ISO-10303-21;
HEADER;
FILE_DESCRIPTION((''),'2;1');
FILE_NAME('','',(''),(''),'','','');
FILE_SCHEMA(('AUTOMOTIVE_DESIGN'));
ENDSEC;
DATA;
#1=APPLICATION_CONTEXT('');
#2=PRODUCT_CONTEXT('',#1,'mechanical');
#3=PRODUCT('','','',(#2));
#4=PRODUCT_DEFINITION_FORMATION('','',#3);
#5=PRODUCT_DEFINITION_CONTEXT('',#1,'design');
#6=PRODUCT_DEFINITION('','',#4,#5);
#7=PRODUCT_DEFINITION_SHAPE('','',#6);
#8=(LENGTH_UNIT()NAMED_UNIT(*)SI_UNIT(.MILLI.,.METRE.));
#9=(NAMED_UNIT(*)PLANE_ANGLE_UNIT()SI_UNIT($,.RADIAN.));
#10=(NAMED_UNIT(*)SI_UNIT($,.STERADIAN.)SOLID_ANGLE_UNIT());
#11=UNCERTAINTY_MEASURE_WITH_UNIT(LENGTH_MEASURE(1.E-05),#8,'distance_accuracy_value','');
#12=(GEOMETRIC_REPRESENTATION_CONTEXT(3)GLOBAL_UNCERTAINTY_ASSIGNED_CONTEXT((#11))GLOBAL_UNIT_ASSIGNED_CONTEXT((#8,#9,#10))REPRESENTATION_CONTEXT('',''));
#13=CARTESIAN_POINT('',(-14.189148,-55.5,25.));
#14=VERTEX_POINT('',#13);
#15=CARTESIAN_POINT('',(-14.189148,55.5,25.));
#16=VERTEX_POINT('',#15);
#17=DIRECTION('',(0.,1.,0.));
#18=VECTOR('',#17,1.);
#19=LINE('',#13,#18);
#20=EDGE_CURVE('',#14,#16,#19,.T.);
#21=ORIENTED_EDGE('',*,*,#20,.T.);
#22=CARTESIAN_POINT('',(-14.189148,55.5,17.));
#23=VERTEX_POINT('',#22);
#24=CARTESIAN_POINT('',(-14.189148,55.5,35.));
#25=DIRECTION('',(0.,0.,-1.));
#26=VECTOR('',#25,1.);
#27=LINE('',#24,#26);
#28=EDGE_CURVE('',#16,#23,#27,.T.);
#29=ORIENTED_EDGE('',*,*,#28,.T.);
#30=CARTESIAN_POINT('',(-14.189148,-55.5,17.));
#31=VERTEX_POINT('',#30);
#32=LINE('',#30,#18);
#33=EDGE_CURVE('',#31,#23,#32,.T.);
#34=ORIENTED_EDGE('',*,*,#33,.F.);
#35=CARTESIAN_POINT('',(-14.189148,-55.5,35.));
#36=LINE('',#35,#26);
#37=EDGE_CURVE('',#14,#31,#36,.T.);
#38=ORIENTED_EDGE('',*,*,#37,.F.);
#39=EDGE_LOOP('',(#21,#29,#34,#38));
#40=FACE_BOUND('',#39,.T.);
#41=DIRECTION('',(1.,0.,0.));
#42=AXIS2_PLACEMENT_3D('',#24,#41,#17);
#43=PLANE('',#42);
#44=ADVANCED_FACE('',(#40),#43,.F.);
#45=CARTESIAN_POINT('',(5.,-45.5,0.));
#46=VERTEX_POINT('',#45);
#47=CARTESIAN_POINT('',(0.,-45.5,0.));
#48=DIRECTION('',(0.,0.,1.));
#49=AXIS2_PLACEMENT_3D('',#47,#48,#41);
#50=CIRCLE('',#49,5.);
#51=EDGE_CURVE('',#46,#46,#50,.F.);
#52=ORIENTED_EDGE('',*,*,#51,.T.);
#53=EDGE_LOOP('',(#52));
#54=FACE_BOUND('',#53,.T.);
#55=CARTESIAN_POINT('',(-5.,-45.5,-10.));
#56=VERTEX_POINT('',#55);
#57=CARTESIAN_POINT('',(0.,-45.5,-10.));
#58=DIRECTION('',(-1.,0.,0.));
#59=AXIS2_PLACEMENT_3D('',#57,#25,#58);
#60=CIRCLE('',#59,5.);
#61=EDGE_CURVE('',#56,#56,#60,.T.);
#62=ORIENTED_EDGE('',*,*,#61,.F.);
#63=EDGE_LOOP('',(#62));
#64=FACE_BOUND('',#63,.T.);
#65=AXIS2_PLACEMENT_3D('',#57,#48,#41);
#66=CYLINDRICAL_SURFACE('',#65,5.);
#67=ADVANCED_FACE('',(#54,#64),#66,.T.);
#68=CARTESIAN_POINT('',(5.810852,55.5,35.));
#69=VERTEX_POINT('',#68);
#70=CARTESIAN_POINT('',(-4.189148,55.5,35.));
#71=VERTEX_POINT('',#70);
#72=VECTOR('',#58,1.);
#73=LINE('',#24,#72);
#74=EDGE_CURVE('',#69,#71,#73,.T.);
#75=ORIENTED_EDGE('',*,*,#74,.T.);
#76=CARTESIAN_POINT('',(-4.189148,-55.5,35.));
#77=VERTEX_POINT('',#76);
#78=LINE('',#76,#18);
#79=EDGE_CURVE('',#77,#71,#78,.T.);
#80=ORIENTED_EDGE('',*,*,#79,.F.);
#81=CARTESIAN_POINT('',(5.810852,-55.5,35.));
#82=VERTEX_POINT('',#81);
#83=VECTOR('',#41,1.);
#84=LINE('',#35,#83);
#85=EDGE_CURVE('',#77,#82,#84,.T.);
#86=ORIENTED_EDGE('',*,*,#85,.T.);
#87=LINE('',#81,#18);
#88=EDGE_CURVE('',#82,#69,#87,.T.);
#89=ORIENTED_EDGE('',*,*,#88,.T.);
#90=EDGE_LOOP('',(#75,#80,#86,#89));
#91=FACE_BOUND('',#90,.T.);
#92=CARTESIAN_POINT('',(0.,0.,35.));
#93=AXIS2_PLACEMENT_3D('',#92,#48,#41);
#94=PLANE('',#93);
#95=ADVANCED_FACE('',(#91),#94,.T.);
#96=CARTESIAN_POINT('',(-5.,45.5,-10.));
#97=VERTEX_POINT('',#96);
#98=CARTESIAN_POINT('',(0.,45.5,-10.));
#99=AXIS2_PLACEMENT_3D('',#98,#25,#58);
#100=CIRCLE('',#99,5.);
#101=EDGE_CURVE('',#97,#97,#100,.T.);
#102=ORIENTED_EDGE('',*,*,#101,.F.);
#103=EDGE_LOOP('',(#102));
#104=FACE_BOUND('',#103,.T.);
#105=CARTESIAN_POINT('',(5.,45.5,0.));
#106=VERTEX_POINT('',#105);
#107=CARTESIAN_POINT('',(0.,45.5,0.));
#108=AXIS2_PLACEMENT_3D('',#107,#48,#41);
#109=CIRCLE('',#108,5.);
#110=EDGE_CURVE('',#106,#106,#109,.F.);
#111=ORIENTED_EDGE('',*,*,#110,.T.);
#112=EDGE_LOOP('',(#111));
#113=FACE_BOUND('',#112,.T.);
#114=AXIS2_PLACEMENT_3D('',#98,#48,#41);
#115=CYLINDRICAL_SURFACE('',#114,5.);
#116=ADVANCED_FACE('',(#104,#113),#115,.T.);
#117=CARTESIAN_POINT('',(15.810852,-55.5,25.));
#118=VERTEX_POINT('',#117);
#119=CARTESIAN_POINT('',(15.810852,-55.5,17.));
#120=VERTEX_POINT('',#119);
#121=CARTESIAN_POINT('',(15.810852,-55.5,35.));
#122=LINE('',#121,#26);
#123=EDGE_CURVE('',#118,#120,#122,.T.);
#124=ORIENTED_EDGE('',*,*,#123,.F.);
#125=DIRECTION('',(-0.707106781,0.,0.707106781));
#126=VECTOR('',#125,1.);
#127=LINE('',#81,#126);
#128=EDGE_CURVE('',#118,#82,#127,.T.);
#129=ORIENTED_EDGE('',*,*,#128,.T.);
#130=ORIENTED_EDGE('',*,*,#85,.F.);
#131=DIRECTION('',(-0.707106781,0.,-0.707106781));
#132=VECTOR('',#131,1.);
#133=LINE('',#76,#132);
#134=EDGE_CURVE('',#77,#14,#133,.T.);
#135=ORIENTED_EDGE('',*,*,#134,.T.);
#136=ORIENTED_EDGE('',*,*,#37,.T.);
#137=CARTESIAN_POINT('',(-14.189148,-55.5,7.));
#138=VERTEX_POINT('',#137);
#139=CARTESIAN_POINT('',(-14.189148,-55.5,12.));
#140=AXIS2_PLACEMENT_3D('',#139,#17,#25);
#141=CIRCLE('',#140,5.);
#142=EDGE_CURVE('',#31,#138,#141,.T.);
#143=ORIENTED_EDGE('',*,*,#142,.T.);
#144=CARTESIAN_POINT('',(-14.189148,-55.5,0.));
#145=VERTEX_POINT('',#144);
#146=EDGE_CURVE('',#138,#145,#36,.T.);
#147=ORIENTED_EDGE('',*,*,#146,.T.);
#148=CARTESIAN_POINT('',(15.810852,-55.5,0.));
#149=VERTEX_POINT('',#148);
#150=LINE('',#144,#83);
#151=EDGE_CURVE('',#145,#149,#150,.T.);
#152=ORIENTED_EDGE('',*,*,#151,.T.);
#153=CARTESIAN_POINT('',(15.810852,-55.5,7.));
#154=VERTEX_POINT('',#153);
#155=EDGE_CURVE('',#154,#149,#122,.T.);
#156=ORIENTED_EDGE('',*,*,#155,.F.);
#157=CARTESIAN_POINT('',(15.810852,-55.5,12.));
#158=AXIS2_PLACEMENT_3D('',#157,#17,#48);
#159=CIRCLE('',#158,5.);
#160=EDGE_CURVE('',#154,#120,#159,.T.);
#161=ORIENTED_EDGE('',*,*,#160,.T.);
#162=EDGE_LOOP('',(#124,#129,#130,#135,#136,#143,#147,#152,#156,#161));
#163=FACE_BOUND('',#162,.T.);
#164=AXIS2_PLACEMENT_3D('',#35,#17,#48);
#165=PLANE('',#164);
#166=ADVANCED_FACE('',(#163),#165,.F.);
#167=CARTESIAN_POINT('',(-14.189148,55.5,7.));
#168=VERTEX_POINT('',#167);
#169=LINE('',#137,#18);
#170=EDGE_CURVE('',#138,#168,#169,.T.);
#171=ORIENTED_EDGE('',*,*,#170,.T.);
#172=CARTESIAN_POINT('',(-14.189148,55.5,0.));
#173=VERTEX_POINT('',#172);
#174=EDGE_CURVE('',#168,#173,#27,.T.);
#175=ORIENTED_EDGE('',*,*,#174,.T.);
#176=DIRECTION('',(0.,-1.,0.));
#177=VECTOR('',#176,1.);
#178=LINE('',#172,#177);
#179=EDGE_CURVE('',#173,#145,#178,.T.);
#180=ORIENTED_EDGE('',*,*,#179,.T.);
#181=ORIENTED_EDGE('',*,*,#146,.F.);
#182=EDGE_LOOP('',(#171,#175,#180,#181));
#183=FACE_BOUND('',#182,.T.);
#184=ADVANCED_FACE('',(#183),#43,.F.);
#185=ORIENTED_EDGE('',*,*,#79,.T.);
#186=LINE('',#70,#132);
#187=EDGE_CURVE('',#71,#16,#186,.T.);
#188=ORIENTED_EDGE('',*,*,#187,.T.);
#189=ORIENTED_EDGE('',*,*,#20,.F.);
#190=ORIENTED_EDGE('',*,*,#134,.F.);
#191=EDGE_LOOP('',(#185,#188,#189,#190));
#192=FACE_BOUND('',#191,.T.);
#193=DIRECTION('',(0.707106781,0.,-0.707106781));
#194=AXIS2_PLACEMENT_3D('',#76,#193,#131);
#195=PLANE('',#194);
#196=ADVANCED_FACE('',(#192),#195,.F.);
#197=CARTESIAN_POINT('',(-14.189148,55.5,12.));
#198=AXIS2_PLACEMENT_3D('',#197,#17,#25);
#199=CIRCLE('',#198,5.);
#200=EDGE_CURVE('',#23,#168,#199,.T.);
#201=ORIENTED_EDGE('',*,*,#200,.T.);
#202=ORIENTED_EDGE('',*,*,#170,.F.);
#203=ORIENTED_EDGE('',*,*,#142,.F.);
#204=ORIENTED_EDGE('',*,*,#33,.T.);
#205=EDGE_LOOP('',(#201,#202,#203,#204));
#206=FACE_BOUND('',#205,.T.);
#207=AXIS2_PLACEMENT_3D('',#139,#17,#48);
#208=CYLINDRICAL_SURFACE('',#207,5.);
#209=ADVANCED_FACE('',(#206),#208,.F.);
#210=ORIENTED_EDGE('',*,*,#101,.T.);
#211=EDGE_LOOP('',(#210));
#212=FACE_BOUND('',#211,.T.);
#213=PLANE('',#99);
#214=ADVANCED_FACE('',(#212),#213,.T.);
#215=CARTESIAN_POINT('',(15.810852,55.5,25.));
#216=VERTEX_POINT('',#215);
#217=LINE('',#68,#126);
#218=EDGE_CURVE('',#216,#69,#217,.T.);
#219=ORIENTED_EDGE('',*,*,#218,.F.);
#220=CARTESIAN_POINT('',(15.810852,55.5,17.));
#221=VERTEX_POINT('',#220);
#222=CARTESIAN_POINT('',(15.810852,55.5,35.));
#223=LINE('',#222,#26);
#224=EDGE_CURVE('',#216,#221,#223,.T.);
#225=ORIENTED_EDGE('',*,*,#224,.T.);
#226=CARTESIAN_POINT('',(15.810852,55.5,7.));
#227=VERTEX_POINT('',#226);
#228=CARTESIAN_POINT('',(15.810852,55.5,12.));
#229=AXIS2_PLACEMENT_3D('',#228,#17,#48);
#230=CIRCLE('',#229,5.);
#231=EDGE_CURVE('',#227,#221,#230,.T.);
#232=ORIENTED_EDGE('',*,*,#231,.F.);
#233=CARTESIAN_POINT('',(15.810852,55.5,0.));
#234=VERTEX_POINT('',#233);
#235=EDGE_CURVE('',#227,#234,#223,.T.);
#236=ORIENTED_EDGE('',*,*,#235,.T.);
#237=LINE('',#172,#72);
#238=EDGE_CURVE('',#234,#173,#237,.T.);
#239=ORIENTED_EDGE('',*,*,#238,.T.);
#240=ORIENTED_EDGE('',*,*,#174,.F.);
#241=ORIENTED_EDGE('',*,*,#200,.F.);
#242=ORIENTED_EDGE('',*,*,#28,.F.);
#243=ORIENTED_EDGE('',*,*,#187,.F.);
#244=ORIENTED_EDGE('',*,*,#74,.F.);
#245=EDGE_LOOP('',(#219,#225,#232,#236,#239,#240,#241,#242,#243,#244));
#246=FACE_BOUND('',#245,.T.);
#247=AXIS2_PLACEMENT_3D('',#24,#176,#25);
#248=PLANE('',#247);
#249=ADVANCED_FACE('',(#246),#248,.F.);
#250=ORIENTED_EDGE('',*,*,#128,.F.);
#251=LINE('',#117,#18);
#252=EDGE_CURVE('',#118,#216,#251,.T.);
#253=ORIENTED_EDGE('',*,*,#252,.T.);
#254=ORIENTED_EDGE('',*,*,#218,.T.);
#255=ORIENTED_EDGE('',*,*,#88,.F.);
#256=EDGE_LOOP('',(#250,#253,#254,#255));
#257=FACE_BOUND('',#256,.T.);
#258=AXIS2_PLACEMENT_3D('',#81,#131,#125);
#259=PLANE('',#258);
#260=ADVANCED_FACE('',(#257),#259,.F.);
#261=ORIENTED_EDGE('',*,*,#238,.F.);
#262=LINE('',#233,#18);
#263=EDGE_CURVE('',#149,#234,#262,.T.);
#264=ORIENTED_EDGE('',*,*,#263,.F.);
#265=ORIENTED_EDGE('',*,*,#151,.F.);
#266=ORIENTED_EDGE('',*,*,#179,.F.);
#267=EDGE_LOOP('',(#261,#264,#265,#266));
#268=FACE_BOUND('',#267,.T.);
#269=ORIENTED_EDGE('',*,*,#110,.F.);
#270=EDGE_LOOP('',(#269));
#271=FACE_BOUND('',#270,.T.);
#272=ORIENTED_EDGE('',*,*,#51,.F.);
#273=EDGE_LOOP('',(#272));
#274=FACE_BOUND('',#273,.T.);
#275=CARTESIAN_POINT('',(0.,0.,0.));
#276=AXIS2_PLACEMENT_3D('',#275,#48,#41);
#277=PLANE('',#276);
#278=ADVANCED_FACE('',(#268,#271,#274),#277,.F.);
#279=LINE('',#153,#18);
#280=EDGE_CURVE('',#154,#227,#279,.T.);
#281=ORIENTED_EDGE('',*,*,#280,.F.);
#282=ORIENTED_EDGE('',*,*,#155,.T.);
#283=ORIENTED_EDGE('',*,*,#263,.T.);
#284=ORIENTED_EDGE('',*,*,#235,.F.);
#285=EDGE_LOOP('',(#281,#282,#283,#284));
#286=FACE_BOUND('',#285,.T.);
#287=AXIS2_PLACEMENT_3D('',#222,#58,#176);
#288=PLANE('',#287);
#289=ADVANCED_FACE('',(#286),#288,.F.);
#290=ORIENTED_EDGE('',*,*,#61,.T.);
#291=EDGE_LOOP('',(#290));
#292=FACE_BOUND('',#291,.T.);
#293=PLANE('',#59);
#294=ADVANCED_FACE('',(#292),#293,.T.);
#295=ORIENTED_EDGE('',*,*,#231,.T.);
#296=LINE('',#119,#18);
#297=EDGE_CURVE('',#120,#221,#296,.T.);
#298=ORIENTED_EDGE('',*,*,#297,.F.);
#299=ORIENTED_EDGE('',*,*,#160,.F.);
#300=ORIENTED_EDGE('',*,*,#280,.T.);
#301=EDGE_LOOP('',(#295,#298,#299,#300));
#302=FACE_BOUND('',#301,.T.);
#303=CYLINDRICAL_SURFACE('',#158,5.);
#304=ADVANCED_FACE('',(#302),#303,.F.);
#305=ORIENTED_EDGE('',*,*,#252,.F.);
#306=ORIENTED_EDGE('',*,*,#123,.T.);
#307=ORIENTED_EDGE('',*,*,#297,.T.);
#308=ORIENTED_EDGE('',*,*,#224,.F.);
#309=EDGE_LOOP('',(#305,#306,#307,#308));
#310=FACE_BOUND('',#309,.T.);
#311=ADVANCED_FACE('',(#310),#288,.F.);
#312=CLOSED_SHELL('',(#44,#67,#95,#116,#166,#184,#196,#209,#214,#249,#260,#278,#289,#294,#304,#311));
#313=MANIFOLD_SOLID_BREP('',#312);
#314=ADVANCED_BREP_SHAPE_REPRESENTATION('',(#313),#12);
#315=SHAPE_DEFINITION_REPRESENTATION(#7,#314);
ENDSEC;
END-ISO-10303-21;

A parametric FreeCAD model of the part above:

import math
import FreeCAD as App
import Part
import Sketcher

V = App.Vector
Q = App.Units.Quantity


def add_polygon(sketch, points):
    """Adds a closed chain of lines whose ends are joined by coincident constraints."""
    first, n = sketch.GeometryCount, len(points)
    for a, b in zip(points, points[1:] + points[:1]):
        sketch.addGeometry(Part.LineSegment(App.Vector(*a, 0), App.Vector(*b, 0)), False)
    for i in range(n):
        sketch.addConstraint(Sketcher.Constraint("Coincident", first + i, 2, first + (i + 1) % n, 1))

doc = App.newDocument("Part")
params = doc.addObject("Spreadsheet::Sheet", "Params")
for row, (alias, value) in enumerate([
    ("sketch1_width", "30 mm"),
    ("sketch1_height", "111 mm"),
    ("pad1_length", "35 mm"),
    ("sketch2_radius", "5 mm"),
    ("sketch3_diameter", "10 mm"),
    ("pad2_length", "10 mm"),
], start=1):
    params.set(f"A{row}", alias)
    params.set(f"B{row}", "=" + value)
    params.setAlias(f"B{row}", alias)

body = doc.addObject("PartDesign::Body", "Body")

# Sketch on XY plane
sketch1 = body.newObject("Sketcher::SketchObject", "Sketch")
sketch1.AttachmentSupport = (doc.getObject("XY_Plane"), [""])
sketch1.MapMode = "FlatFace"
add_polygon(sketch1, [(-14, 56), (-14, -56), (16, -56), (16, 56)])  # lines 0-3
sketch1.addConstraint(Sketcher.Constraint("Vertical", 0))
sketch1.addConstraint(Sketcher.Constraint("Horizontal", 1))
sketch1.addConstraint(Sketcher.Constraint("Vertical", 2))
sketch1.addConstraint(Sketcher.Constraint("Horizontal", 3))
sketch1.addConstraint(Sketcher.Constraint("DistanceX", 1, 1, 1, 2, Q("30 mm")))
sketch1.addConstraint(Sketcher.Constraint("DistanceY", 0, 2, 0, 1, Q("111 mm")))
sketch1.addConstraint(Sketcher.Constraint("DistanceY", 0, 2, -1, 1, Q("55.5 mm")))
sketch1.addConstraint(Sketcher.Constraint("DistanceX", 0, 2, -1, 1, Q("14.189148 mm")))
sketch1.setExpression("Constraints[8]", "Params.sketch1_width")
sketch1.setExpression("Constraints[9]", "Params.sketch1_height")
pad1 = body.newObject("PartDesign::Pad", "Pad")
pad1.Profile = sketch1
pad1.setExpression("Length", "Params.pad1_length")

# Sketch on XZ plane
sketch2 = body.newObject("Sketcher::SketchObject", "Sketch001")
sketch2.AttachmentSupport = (doc.getObject("XZ_Plane"), [""])
sketch2.MapMode = "FlatFace"
sketch2.AttachmentOffset = App.Placement(V(0, 0, -55.5), App.Rotation())
add_polygon(sketch2, [(16, 25), (6, 35), (16, 35)])  # lines 0-2
sketch2.addGeometry(Part.LineSegment(V(16, 17, 0), V(16, 7, 0)), False)  # 3
sketch2.addGeometry(Part.ArcOfCircle(Part.Circle(V(16, 12, 0), V(0, 0, 1), 5), math.radians(90), math.radians(270)), False)  # 4
add_polygon(sketch2, [(-14, 25), (-14, 35), (-4, 35)])  # lines 5-7
sketch2.addGeometry(Part.LineSegment(V(-14, 7, 0), V(-14, 17, 0)), False)  # 8
sketch2.addGeometry(Part.ArcOfCircle(Part.Circle(V(-14, 12, 0), V(0, 0, 1), 5), math.radians(-90), math.radians(90)), False)  # 9
sketch2.addConstraint(Sketcher.Constraint("Coincident", 3, 1, 4, 1))
sketch2.addConstraint(Sketcher.Constraint("Coincident", 4, 2, 3, 2))
sketch2.addConstraint(Sketcher.Constraint("Coincident", 8, 1, 9, 1))
sketch2.addConstraint(Sketcher.Constraint("Coincident", 9, 2, 8, 2))
sketch2.addConstraint(Sketcher.Constraint("Horizontal", 1))
sketch2.addConstraint(Sketcher.Constraint("Vertical", 2))
sketch2.addConstraint(Sketcher.Constraint("Vertical", 3))
sketch2.addConstraint(Sketcher.Constraint("Vertical", 5))
sketch2.addConstraint(Sketcher.Constraint("Horizontal", 6))
sketch2.addConstraint(Sketcher.Constraint("Vertical", 8))
sketch2.addConstraint(Sketcher.Constraint("Equal", 4, 9))
sketch2.addConstraint(Sketcher.Constraint("Perpendicular", 0, 7))
sketch2.addConstraint(Sketcher.Constraint("Horizontal", 4, 3, 9, 3))
sketch2.addConstraint(Sketcher.Constraint("Horizontal", 1, 2, 5, 2))
sketch2.addConstraint(Sketcher.Constraint("Horizontal", 2, 2, 7, 2))
sketch2.addConstraint(Sketcher.Constraint("Vertical", 4, 3, 1, 2))
sketch2.addConstraint(Sketcher.Constraint("Vertical", 2, 2, 3, 1))
sketch2.addConstraint(Sketcher.Constraint("Vertical", 9, 3, 5, 2))
sketch2.addConstraint(Sketcher.Constraint("Vertical", 7, 2, 8, 1))
sketch2.addConstraint(Sketcher.Constraint("Equal", 1, 6))
sketch2.addConstraint(Sketcher.Constraint("Equal", 2, 3))
sketch2.addConstraint(Sketcher.Constraint("Radius", 4, Q("5 mm")))
sketch2.addConstraint(Sketcher.Constraint("DistanceY", -1, 1, 4, 3, Q("12 mm")))
sketch2.addConstraint(Sketcher.Constraint("DistanceY", -1, 1, 0, 2, Q("35 mm")))
sketch2.addConstraint(Sketcher.Constraint("DistanceX", 9, 3, 4, 3, Q("30 mm")))
sketch2.addConstraint(Sketcher.Constraint("DistanceX", -1, 1, 4, 3, Q("15.810852 mm")))
sketch2.setExpression("Constraints[27]", "Params.sketch2_radius")
pocket1 = body.newObject("PartDesign::Pocket", "Pocket")
pocket1.Profile = sketch2
pocket1.Type = "ThroughAll"
pocket1.Reversed = True

# Sketch on XY plane
sketch3 = body.newObject("Sketcher::SketchObject", "Sketch002")
sketch3.AttachmentSupport = (doc.getObject("XY_Plane"), [""])
sketch3.MapMode = "FlatFace"
sketch3.addGeometry(Part.Circle(V(0, 46, 0), V(0, 0, 1), 5), False)
sketch3.addGeometry(Part.Circle(V(0, -46, 0), V(0, 0, 1), 5), False)
sketch3.addConstraint(Sketcher.Constraint("Equal", 0, 1))
sketch3.addConstraint(Sketcher.Constraint("Symmetric", 0, 3, 1, 3, -1, 1))
sketch3.addConstraint(Sketcher.Constraint("PointOnObject", 0, 3, -2))
sketch3.addConstraint(Sketcher.Constraint("Diameter", 0, Q("10 mm")))
sketch3.addConstraint(Sketcher.Constraint("DistanceY", 1, 3, 0, 3, Q("91 mm")))
sketch3.setExpression("Constraints[3]", "Params.sketch3_diameter")
pad2 = body.newObject("PartDesign::Pad", "Pad001")
pad2.Profile = sketch3
pad2.setExpression("Length", "Params.pad2_length")
pad2.Reversed = True

doc.recompute()
